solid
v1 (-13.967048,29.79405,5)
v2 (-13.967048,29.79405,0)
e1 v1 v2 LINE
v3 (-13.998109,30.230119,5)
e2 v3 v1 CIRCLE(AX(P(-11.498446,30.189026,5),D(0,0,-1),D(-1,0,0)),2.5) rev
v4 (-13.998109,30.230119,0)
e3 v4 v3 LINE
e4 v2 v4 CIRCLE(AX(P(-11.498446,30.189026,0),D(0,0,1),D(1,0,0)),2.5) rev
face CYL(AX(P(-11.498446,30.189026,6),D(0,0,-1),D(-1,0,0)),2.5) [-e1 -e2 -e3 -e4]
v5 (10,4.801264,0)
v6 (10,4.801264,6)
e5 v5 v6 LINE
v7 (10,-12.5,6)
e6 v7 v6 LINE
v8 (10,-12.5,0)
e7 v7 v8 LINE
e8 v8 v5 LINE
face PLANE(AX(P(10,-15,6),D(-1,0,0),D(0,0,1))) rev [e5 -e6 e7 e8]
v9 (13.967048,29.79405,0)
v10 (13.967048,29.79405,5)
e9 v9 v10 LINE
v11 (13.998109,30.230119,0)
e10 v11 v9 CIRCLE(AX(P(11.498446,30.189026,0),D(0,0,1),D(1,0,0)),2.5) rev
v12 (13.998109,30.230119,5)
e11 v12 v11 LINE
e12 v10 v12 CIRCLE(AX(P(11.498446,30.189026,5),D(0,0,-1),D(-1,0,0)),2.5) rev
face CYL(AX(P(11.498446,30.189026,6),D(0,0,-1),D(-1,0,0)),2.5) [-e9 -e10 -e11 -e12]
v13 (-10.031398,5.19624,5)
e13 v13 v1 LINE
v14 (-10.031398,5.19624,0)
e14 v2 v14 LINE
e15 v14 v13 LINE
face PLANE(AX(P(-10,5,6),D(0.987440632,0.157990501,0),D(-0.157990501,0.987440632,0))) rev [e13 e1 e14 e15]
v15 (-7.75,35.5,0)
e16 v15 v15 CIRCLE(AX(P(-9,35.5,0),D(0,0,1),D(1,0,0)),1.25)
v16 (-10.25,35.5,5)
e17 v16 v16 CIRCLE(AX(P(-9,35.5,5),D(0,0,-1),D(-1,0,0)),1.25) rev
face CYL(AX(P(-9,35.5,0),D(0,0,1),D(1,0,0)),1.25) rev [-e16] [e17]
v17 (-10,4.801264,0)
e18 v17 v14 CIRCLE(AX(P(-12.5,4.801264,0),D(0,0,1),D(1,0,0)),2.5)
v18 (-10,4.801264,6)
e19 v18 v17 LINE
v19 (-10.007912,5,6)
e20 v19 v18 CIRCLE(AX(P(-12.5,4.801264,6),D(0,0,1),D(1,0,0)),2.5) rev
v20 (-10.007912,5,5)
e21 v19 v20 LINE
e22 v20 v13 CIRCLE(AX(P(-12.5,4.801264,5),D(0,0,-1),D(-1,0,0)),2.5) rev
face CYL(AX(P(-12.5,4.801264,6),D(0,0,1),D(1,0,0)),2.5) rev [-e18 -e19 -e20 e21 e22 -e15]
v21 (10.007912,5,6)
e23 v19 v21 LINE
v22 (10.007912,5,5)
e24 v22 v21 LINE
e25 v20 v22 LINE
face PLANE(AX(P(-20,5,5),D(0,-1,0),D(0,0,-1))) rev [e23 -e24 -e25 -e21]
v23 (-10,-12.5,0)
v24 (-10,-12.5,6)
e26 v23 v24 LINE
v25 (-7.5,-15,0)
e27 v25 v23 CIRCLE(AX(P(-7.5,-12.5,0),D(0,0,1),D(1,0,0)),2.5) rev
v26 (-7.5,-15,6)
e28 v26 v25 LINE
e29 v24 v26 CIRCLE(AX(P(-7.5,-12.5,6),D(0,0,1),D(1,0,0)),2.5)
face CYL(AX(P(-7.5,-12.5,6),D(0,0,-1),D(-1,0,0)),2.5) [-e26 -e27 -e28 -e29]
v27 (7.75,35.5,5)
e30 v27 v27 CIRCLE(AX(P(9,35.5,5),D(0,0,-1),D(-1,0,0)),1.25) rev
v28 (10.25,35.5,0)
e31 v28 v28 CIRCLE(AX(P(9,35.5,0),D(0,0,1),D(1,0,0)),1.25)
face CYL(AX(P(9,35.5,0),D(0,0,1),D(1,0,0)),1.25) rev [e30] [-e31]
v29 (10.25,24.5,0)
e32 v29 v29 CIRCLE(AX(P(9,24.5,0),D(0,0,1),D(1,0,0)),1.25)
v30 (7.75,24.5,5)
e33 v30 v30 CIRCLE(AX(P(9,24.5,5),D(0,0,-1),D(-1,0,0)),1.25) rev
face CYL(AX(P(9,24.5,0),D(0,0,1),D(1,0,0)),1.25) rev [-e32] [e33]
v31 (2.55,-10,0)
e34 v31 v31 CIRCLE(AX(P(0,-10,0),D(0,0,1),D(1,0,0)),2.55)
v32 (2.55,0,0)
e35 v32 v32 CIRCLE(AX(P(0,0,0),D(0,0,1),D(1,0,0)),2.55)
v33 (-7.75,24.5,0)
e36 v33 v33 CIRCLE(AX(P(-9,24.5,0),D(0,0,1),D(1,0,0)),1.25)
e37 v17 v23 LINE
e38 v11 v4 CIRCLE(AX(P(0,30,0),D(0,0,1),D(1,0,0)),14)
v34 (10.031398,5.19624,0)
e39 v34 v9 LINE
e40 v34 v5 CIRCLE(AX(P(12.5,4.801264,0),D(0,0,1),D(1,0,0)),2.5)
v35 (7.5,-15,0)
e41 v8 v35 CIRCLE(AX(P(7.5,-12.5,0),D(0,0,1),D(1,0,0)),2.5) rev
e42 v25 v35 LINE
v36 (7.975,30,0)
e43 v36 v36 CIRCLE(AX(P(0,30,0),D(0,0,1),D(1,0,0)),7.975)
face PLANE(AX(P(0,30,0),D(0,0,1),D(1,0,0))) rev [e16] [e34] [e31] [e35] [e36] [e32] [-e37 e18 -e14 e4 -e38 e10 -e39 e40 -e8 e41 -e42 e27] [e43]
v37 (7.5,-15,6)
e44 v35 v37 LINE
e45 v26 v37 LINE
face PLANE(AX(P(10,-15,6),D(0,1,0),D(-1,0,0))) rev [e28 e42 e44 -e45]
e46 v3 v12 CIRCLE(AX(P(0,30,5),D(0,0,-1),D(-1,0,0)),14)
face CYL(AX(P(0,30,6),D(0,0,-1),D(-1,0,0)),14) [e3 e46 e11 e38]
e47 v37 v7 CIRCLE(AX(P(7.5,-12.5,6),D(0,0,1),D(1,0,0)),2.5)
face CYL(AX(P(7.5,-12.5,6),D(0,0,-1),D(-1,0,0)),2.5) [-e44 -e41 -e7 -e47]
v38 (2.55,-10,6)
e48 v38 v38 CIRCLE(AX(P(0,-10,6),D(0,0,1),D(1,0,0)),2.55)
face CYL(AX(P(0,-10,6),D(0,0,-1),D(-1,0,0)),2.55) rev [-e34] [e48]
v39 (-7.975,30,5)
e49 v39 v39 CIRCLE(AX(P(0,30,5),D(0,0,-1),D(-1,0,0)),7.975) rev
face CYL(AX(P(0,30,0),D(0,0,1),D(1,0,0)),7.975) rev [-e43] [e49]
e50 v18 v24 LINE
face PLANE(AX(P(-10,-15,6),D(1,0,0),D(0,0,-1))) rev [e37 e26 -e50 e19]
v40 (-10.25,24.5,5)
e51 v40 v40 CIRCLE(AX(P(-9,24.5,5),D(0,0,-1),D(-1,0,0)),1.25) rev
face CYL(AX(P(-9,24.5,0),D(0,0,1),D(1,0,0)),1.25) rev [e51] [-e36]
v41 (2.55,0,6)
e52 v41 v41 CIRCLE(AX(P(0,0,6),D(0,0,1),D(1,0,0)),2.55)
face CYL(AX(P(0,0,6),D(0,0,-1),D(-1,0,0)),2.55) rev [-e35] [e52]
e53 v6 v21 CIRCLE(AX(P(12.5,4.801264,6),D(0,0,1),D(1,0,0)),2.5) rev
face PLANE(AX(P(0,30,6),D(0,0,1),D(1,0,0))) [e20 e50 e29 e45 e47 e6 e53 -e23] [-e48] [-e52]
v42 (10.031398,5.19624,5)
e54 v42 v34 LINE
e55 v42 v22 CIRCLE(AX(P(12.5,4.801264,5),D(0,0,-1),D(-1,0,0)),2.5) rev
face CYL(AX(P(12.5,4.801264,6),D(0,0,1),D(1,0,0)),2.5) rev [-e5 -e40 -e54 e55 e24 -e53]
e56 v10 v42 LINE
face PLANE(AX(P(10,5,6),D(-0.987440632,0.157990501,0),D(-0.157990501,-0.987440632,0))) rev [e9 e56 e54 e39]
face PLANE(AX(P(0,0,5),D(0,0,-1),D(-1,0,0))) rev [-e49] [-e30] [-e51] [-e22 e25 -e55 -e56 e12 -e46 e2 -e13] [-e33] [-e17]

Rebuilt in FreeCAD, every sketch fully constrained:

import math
import FreeCAD as App
import Part
import Sketcher

V = App.Vector


def edges_at(feature, points):
    """Names of the edges that pass closest to the given points."""
    edges = feature.Shape.Edges
    near = lambda p: min(range(len(edges)), key=lambda i: edges[i].distToShape(Part.Vertex(*p))[0])
    return sorted({f"Edge{near(p) + 1}" for p in points})


def add_polygon(sketch, points):
    """Adds a closed chain of lines whose ends are joined by coincident constraints."""
    first, n = sketch.GeometryCount, len(points)
    for a, b in zip(points, points[1:] + points[:1]):
        sketch.addGeometry(Part.LineSegment(App.Vector(*a, 0), App.Vector(*b, 0)), False)
    for i in range(n):
        sketch.addConstraint(Sketcher.Constraint("Coincident", first + i, 2, first + (i + 1) % n, 1))

doc = App.newDocument("Part")
body = doc.addObject("PartDesign::Body", "Body")

# Sketch on XY plane
sketch1 = doc.addObject("Sketcher::SketchObject", "Sketch")
body.addObject(sketch1)
sketch1.AttachmentSupport = (doc.XY_Plane, [""])
sketch1.MapMode = "FlatFace"
sketch1.addGeometry(Part.LineSegment(V(-10, 5, 0), V(-10, -15, 0)), False)
sketch1.addGeometry(Part.LineSegment(V(-10, -15, 0), V(10, -15, 0)), False)
sketch1.addGeometry(Part.LineSegment(V(10, -15, 0), V(10, 5, 0)), False)
sketch1.addGeometry(Part.LineSegment(V(10, 5, 0), V(14, 30, 0)), False)
sketch1.addGeometry(Part.ArcOfCircle(Part.Circle(V(0, 30, 0), V(0, 0, 1), 14), math.radians(0), math.radians(180)), False)
sketch1.addGeometry(Part.LineSegment(V(-14, 30, 0), V(-10, 5, 0)), False)
sketch1.addGeometry(Part.Circle(V(0, -10, 0), V(0, 0, 1), 2.5), False)
sketch1.addGeometry(Part.Circle(V(0, 0, 0), V(0, 0, 1), 2.5), False)
sketch1.addConstraint(Sketcher.Constraint("Coincident", 0, 2, 1, 1))
sketch1.addConstraint(Sketcher.Constraint("Coincident", 1, 2, 2, 1))
sketch1.addConstraint(Sketcher.Constraint("Coincident", 2, 2, 3, 1))
sketch1.addConstraint(Sketcher.Constraint("Coincident", 3, 2, 4, 1))
sketch1.addConstraint(Sketcher.Constraint("Coincident", 4, 2, 5, 1))
sketch1.addConstraint(Sketcher.Constraint("Coincident", 5, 2, 0, 1))
sketch1.addConstraint(Sketcher.Constraint("Vertical", 0))
sketch1.addConstraint(Sketcher.Constraint("Horizontal", 1))
sketch1.addConstraint(Sketcher.Constraint("Vertical", 2))
sketch1.addConstraint(Sketcher.Constraint("Coincident", 7, 3, -1, 1))
sketch1.addConstraint(Sketcher.Constraint("Equal", 6, 7))
sketch1.addConstraint(Sketcher.Constraint("Symmetric", 3, 2, 4, 2, -2))
sketch1.addConstraint(Sketcher.Constraint("Symmetric", 2, 2, 5, 2, -2))
sketch1.addConstraint(Sketcher.Constraint("PointOnObject", 6, 3, -2))
sketch1.addConstraint(Sketcher.Constraint("Horizontal", 4, 3, 3, 2))
sketch1.addConstraint(Sketcher.Constraint("Equal", 1, 0))
sketch1.addConstraint(Sketcher.Constraint("Radius", 4, 14.0))
sketch1.addConstraint(Sketcher.Constraint("Diameter", 6, 5.1))
sketch1.addConstraint(Sketcher.Constraint("DistanceX", 1, 1, 1, 2, 20.0))
sketch1.addConstraint(Sketcher.Constraint("DistanceY", -1, 1, 4, 3, 30.0))
sketch1.addConstraint(Sketcher.Constraint("DistanceY", 6, 3, -1, 1, 10.0))
sketch1.addConstraint(Sketcher.Constraint("DistanceY", 0, 2, -1, 1, 15.0))
pad1 = doc.addObject("PartDesign::Pad", "Pad")
body.addObject(pad1)
pad1.Profile = sketch1
pad1.Length = 6
doc.recompute()

fillet = doc.addObject("PartDesign::Fillet", "Fillet")
body.addObject(fillet)
fillet.Base = (pad1, edges_at(pad1, [
    (14, 30, 3),
    (10, 5, 3),
    (10, -15, 3),
    (-10, -15, 3),
    (-10, 5, 3),
    (-14, 30, 3),
]))
fillet.Radius = 2.5

# Sketch on XY plane
sketch2 = doc.addObject("Sketcher::SketchObject", "Sketch001")
body.addObject(sketch2)
sketch2.AttachmentSupport = (doc.XY_Plane, [""])
sketch2.MapMode = "FlatFace"
sketch2.AttachmentOffset = App.Placement(V(0, 0, 6), App.Rotation())
sketch2.addGeometry(Part.Circle(V(0, 30, 0), V(0, 0, 1), 8), False)
sketch2.addConstraint(Sketcher.Constraint("PointOnObject", 0, 3, -2))
sketch2.addConstraint(Sketcher.Constraint("Diameter", 0, 15.95))
sketch2.addConstraint(Sketcher.Constraint("DistanceY", -1, 1, 0, 3, 30.0))
pocket1 = doc.addObject("PartDesign::Pocket", "Pocket")
body.addObject(pocket1)
pocket1.Profile = sketch2
pocket1.Type = "ThroughAll"

# Sketch on XY plane
sketch3 = doc.addObject("Sketcher::SketchObject", "Sketch002")
body.addObject(sketch3)
sketch3.AttachmentSupport = (doc.XY_Plane, [""])
sketch3.MapMode = "FlatFace"
sketch3.AttachmentOffset = App.Placement(V(0, 0, 6), App.Rotation())
sketch3.addGeometry(Part.Circle(V(-9, 24.5, 0), V(0, 0, 1), 1.2), False)
sketch3.addGeometry(Part.Circle(V(9, 24.5, 0), V(0, 0, 1), 1.2), False)
sketch3.addGeometry(Part.Circle(V(-9, 35.5, 0), V(0, 0, 1), 1.2), False)
sketch3.addGeometry(Part.Circle(V(9, 35.5, 0), V(0, 0, 1), 1.2), False)
sketch3.addConstraint(Sketcher.Constraint("Equal", 0, 1))
sketch3.addConstraint(Sketcher.Constraint("Equal", 1, 2))
sketch3.addConstraint(Sketcher.Constraint("Equal", 2, 3))
sketch3.addConstraint(Sketcher.Constraint("Symmetric", 0, 3, 1, 3, -2))
sketch3.addConstraint(Sketcher.Constraint("Symmetric", 2, 3, 3, 3, -2))
sketch3.addConstraint(Sketcher.Constraint("Vertical", 0, 3, 2, 3))
sketch3.addConstraint(Sketcher.Constraint("Diameter", 0, 2.5))
sketch3.addConstraint(Sketcher.Constraint("DistanceX", 0, 3, -1, 1, 9.0))
sketch3.addConstraint(Sketcher.Constraint("DistanceY", 0, 3, 2, 3, 11.0))
sketch3.addConstraint(Sketcher.Constraint("DistanceY", -1, 1, 0, 3, 24.5))
pocket2 = doc.addObject("PartDesign::Pocket", "Pocket001")
body.addObject(pocket2)
pocket2.Profile = sketch3
pocket2.Type = "ThroughAll"

# Sketch on XY plane
sketch4 = doc.addObject("Sketcher::SketchObject", "Sketch003")
body.addObject(sketch4)
sketch4.AttachmentSupport = (doc.XY_Plane, [""])
sketch4.MapMode = "FlatFace"
sketch4.AttachmentOffset = App.Placement(V(0, 0, 6), App.Rotation())
add_polygon(sketch4, [(-20, 55), (-20, 5), (20, 5), (20, 55)])  # lines 0-3
sketch4.addConstraint(Sketcher.Constraint("Vertical", 0))
sketch4.addConstraint(Sketcher.Constraint("Horizontal", 1))
sketch4.addConstraint(Sketcher.Constraint("Vertical", 2))
sketch4.addConstraint(Sketcher.Constraint("Horizontal", 3))
sketch4.addConstraint(Sketcher.Constraint("DistanceX", 1, 1, 1, 2, 40.0))
sketch4.addConstraint(Sketcher.Constraint("DistanceY", 0, 2, 0, 1, 50.0))
sketch4.addConstraint(Sketcher.Constraint("DistanceX", 0, 2, -1, 1, 20.0))
sketch4.addConstraint(Sketcher.Constraint("DistanceY", -1, 1, 0, 2, 5.0))
pocket3 = doc.addObject("PartDesign::Pocket", "Pocket002")
body.addObject(pocket3)
pocket3.Profile = sketch4
pocket3.Length = 1

doc.recompute()
